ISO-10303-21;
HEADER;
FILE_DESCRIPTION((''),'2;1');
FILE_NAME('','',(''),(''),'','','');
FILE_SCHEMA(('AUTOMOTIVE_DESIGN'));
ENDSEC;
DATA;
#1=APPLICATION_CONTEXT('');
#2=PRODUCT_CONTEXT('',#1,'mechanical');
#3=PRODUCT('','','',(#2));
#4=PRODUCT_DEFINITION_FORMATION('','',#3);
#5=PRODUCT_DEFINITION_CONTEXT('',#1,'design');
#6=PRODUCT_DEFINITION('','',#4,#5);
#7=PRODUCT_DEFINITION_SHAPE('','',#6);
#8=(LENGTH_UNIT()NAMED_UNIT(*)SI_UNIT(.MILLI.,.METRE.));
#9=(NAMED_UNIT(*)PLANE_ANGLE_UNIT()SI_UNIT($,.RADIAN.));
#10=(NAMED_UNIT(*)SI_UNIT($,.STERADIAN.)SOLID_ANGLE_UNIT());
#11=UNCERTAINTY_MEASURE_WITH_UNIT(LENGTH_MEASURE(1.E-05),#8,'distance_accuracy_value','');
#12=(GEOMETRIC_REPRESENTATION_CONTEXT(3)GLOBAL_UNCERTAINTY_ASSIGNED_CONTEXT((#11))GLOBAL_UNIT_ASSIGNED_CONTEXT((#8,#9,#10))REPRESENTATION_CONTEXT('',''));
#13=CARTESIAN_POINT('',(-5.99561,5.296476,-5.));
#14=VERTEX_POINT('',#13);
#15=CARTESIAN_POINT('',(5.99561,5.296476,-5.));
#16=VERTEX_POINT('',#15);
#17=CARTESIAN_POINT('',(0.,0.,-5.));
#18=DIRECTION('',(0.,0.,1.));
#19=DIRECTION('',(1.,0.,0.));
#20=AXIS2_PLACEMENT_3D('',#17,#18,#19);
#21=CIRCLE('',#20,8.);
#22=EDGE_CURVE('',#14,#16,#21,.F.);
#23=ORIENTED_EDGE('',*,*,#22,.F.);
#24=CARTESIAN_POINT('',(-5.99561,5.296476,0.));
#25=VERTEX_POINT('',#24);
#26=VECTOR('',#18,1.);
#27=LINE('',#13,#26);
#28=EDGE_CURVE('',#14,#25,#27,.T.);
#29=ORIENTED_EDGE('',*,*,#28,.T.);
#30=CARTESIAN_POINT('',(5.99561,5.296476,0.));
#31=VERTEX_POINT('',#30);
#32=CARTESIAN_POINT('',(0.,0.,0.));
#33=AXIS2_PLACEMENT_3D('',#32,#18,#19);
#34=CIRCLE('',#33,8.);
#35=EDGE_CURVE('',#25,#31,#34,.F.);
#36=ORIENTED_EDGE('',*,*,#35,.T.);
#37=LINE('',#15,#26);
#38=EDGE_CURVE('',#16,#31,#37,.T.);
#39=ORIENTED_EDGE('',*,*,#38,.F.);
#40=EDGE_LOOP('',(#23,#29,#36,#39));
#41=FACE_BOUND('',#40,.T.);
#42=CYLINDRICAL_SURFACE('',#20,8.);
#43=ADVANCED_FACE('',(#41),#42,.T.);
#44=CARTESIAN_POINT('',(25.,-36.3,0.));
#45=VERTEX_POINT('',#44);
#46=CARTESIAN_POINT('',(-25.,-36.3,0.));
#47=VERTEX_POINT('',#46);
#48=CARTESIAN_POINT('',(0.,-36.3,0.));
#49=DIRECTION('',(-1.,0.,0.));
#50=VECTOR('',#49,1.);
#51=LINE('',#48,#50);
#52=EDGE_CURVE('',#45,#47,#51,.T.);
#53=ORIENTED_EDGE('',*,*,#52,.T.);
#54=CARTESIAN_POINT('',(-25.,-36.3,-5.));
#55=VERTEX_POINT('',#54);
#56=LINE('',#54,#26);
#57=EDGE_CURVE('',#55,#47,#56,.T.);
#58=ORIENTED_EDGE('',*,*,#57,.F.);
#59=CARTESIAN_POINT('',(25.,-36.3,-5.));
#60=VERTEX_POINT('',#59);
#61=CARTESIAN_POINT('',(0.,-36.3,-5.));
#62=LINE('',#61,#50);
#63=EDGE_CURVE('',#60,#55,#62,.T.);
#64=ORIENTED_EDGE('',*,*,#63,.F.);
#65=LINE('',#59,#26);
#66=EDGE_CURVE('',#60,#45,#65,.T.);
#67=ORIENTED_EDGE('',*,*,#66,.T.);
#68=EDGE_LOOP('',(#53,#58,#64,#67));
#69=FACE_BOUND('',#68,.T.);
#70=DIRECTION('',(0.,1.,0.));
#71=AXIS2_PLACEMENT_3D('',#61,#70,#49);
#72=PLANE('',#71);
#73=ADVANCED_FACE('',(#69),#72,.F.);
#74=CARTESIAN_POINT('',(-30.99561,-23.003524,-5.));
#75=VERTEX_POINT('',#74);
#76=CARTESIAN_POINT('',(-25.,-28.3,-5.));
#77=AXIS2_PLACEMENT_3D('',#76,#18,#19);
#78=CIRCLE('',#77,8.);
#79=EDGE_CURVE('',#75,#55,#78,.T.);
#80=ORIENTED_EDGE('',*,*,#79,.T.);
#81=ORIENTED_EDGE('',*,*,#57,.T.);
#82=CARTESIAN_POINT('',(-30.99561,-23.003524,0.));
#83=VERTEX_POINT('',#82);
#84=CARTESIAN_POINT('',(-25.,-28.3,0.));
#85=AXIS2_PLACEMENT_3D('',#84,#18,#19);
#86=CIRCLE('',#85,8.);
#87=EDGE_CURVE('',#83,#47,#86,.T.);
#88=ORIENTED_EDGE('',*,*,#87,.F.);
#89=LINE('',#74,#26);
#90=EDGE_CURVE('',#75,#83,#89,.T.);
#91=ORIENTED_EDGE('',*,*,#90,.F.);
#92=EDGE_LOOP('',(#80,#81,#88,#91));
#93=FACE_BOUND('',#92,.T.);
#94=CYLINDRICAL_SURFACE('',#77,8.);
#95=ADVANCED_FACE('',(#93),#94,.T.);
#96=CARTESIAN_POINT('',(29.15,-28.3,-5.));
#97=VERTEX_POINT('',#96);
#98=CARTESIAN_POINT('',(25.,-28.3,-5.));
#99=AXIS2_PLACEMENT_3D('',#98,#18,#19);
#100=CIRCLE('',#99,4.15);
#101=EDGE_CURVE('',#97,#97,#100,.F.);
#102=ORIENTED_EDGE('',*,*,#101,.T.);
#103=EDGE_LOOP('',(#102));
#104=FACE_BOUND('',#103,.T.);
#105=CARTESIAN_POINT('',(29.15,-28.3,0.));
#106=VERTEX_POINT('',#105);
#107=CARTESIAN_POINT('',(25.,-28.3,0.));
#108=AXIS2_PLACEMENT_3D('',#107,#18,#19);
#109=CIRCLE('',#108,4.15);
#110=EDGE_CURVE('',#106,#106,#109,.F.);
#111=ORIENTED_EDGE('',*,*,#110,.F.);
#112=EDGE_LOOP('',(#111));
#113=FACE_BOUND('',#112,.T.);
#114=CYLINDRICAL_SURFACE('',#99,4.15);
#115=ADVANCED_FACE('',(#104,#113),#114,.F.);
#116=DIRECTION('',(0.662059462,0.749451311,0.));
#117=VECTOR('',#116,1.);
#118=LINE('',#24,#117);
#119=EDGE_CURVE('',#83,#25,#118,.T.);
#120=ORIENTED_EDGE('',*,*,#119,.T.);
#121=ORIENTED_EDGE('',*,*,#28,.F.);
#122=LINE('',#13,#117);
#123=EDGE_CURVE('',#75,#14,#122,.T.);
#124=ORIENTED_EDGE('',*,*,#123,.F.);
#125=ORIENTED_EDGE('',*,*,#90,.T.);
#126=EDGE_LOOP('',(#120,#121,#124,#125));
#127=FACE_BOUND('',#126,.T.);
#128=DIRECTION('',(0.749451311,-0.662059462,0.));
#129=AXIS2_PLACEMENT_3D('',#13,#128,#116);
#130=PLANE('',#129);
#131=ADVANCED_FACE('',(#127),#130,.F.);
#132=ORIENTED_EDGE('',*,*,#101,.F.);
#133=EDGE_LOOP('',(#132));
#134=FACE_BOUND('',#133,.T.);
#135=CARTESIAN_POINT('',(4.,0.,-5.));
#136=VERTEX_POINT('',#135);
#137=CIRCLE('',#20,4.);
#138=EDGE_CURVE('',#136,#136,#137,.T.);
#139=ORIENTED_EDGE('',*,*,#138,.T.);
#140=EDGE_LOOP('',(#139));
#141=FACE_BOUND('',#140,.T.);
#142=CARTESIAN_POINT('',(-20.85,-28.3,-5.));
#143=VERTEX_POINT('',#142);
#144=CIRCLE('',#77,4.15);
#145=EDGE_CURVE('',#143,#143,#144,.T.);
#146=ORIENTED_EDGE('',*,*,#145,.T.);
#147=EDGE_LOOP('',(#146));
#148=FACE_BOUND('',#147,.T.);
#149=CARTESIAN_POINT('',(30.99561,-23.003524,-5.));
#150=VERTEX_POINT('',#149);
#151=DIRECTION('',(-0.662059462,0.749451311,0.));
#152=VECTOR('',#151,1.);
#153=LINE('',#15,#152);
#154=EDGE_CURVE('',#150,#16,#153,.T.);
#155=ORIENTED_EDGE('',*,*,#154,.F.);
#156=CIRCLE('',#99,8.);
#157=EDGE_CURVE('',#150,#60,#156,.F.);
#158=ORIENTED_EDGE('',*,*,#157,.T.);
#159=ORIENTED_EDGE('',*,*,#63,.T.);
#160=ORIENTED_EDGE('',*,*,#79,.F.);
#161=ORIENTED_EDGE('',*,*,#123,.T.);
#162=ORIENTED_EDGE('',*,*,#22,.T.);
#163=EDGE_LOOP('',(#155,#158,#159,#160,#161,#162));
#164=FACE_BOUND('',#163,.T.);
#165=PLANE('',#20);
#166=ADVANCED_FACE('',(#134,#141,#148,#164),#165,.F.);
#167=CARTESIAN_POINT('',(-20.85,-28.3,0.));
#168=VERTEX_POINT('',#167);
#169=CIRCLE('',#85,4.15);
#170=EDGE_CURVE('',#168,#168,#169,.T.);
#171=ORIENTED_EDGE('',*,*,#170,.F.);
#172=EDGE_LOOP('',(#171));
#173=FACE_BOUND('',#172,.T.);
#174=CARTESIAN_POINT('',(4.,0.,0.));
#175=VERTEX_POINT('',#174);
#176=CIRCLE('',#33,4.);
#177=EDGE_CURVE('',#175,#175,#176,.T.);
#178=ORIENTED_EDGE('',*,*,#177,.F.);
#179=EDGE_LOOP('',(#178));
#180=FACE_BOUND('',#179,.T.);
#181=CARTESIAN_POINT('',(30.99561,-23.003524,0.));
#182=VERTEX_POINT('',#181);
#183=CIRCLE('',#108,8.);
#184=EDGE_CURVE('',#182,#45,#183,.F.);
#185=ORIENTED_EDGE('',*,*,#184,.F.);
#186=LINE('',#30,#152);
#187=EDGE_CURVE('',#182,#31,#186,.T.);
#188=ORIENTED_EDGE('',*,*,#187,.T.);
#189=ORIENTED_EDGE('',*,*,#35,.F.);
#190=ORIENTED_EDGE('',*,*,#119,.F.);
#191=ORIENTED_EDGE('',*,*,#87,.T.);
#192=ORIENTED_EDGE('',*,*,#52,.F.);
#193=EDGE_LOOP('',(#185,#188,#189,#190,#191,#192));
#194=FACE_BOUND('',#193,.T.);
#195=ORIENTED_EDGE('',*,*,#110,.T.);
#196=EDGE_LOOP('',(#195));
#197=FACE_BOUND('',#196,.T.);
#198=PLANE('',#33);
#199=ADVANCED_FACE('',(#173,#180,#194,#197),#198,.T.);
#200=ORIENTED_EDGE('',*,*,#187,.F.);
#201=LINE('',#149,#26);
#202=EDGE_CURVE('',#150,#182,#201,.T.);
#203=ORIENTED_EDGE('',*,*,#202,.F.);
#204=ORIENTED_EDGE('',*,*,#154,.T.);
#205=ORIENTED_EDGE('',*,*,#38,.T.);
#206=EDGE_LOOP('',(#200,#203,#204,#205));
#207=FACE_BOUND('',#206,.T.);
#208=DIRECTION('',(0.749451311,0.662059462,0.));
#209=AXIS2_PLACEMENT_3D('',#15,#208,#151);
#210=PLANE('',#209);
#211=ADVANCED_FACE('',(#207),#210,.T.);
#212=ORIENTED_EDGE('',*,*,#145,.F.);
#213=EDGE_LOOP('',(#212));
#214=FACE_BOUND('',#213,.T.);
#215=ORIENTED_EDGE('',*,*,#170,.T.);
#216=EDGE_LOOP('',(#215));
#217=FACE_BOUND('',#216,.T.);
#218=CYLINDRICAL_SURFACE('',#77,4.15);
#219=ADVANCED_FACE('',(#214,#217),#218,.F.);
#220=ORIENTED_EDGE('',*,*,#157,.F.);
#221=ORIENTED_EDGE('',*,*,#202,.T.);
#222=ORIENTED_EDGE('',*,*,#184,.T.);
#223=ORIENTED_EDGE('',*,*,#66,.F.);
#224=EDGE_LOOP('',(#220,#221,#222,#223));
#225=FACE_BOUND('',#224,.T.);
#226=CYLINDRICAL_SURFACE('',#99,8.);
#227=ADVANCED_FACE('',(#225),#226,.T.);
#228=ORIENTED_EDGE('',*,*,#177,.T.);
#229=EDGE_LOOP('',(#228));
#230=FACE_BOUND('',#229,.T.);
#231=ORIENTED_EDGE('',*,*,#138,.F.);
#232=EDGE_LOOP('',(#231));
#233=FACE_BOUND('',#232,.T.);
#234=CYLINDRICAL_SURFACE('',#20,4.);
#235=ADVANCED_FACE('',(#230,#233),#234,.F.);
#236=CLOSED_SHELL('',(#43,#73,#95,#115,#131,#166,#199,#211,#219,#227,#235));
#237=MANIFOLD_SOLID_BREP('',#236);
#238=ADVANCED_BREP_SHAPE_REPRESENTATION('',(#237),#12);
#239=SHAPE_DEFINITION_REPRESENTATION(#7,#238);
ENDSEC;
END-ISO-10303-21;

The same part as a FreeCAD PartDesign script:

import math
import FreeCAD as App
import Part
import Sketcher

V = App.Vector

doc = App.newDocument("Part")
body = doc.addObject("PartDesign::Body", "Body")

# Sketch on XY plane
sketch1 = body.newObject("Sketcher::SketchObject", "Sketch")
sketch1.AttachmentSupport = (doc.getObject("XY_Plane"), [""])
sketch1.MapMode = "FlatFace"
sketch1.addGeometry(Part.LineSegment(V(-6, 5.3, 0), V(-31, -23, 0)), False)
sketch1.addGeometry(Part.ArcOfCircle(Part.Circle(V(-25, -28.3, 0), V(0, 0, 1), 8), math.radians(139), math.radians(270)), False)
sketch1.addGeometry(Part.LineSegment(V(-25, -36.3, 0), V(25, -36.3, 0)), False)
sketch1.addGeometry(Part.ArcOfCircle(Part.Circle(V(25, -28.3, 0), V(0, 0, 1), 8), math.radians(-90), math.radians(41)), False)
sketch1.addGeometry(Part.LineSegment(V(31, -23, 0), V(6, 5.3, 0)), False)
sketch1.addGeometry(Part.ArcOfCircle(Part.Circle(V(0, 0, 0), V(0, 0, 1), 8), math.radians(41), math.radians(139)), False)
sketch1.addGeometry(Part.Circle(V(0, 0, 0), V(0, 0, 1), 4), False)
sketch1.addGeometry(Part.Circle(V(-25, -28.3, 0), V(0, 0, 1), 4.2), False)
sketch1.addGeometry(Part.Circle(V(25, -28.3, 0), V(0, 0, 1), 4.2), False)
sketch1.addConstraint(Sketcher.Constraint("Tangent", 0, 2, 1, 1))
sketch1.addConstraint(Sketcher.Constraint("Tangent", 1, 2, 2, 1))
sketch1.addConstraint(Sketcher.Constraint("Tangent", 2, 2, 3, 1))
sketch1.addConstraint(Sketcher.Constraint("Tangent", 3, 2, 4, 1))
sketch1.addConstraint(Sketcher.Constraint("Tangent", 4, 2, 5, 1))
sketch1.addConstraint(Sketcher.Constraint("Tangent", 5, 2, 0, 1))
sketch1.addConstraint(Sketcher.Constraint("Horizontal", 2))
sketch1.addConstraint(Sketcher.Constraint("Coincident", 5, 3, -1, 1))
sketch1.addConstraint(Sketcher.Constraint("Coincident", 6, 3, -1, 1))
sketch1.addConstraint(Sketcher.Constraint("Coincident", 7, 3, 1, 3))
sketch1.addConstraint(Sketcher.Constraint("Coincident", 8, 3, 3, 3))
sketch1.addConstraint(Sketcher.Constraint("Equal", 1, 3))
sketch1.addConstraint(Sketcher.Constraint("Equal", 3, 5))
sketch1.addConstraint(Sketcher.Constraint("Equal", 7, 8))
sketch1.addConstraint(Sketcher.Constraint("Horizontal", 0, 2, 3, 2))
sketch1.addConstraint(Sketcher.Constraint("Diameter", 6, 8.0))
sketch1.addConstraint(Sketcher.Constraint("Radius", 1, 8.0))
sketch1.addConstraint(Sketcher.Constraint("Diameter", 7, 8.3))
sketch1.addConstraint(Sketcher.Constraint("DistanceX", 2, 1, 2, 2, 50.0))
sketch1.addConstraint(Sketcher.Constraint("DistanceY", 1, 3, -1, 1, 28.3))
pad1 = body.newObject("PartDesign::Pad", "Pad")
pad1.Profile = sketch1
pad1.Length = 5
pad1.Reversed = True

doc.recompute()
